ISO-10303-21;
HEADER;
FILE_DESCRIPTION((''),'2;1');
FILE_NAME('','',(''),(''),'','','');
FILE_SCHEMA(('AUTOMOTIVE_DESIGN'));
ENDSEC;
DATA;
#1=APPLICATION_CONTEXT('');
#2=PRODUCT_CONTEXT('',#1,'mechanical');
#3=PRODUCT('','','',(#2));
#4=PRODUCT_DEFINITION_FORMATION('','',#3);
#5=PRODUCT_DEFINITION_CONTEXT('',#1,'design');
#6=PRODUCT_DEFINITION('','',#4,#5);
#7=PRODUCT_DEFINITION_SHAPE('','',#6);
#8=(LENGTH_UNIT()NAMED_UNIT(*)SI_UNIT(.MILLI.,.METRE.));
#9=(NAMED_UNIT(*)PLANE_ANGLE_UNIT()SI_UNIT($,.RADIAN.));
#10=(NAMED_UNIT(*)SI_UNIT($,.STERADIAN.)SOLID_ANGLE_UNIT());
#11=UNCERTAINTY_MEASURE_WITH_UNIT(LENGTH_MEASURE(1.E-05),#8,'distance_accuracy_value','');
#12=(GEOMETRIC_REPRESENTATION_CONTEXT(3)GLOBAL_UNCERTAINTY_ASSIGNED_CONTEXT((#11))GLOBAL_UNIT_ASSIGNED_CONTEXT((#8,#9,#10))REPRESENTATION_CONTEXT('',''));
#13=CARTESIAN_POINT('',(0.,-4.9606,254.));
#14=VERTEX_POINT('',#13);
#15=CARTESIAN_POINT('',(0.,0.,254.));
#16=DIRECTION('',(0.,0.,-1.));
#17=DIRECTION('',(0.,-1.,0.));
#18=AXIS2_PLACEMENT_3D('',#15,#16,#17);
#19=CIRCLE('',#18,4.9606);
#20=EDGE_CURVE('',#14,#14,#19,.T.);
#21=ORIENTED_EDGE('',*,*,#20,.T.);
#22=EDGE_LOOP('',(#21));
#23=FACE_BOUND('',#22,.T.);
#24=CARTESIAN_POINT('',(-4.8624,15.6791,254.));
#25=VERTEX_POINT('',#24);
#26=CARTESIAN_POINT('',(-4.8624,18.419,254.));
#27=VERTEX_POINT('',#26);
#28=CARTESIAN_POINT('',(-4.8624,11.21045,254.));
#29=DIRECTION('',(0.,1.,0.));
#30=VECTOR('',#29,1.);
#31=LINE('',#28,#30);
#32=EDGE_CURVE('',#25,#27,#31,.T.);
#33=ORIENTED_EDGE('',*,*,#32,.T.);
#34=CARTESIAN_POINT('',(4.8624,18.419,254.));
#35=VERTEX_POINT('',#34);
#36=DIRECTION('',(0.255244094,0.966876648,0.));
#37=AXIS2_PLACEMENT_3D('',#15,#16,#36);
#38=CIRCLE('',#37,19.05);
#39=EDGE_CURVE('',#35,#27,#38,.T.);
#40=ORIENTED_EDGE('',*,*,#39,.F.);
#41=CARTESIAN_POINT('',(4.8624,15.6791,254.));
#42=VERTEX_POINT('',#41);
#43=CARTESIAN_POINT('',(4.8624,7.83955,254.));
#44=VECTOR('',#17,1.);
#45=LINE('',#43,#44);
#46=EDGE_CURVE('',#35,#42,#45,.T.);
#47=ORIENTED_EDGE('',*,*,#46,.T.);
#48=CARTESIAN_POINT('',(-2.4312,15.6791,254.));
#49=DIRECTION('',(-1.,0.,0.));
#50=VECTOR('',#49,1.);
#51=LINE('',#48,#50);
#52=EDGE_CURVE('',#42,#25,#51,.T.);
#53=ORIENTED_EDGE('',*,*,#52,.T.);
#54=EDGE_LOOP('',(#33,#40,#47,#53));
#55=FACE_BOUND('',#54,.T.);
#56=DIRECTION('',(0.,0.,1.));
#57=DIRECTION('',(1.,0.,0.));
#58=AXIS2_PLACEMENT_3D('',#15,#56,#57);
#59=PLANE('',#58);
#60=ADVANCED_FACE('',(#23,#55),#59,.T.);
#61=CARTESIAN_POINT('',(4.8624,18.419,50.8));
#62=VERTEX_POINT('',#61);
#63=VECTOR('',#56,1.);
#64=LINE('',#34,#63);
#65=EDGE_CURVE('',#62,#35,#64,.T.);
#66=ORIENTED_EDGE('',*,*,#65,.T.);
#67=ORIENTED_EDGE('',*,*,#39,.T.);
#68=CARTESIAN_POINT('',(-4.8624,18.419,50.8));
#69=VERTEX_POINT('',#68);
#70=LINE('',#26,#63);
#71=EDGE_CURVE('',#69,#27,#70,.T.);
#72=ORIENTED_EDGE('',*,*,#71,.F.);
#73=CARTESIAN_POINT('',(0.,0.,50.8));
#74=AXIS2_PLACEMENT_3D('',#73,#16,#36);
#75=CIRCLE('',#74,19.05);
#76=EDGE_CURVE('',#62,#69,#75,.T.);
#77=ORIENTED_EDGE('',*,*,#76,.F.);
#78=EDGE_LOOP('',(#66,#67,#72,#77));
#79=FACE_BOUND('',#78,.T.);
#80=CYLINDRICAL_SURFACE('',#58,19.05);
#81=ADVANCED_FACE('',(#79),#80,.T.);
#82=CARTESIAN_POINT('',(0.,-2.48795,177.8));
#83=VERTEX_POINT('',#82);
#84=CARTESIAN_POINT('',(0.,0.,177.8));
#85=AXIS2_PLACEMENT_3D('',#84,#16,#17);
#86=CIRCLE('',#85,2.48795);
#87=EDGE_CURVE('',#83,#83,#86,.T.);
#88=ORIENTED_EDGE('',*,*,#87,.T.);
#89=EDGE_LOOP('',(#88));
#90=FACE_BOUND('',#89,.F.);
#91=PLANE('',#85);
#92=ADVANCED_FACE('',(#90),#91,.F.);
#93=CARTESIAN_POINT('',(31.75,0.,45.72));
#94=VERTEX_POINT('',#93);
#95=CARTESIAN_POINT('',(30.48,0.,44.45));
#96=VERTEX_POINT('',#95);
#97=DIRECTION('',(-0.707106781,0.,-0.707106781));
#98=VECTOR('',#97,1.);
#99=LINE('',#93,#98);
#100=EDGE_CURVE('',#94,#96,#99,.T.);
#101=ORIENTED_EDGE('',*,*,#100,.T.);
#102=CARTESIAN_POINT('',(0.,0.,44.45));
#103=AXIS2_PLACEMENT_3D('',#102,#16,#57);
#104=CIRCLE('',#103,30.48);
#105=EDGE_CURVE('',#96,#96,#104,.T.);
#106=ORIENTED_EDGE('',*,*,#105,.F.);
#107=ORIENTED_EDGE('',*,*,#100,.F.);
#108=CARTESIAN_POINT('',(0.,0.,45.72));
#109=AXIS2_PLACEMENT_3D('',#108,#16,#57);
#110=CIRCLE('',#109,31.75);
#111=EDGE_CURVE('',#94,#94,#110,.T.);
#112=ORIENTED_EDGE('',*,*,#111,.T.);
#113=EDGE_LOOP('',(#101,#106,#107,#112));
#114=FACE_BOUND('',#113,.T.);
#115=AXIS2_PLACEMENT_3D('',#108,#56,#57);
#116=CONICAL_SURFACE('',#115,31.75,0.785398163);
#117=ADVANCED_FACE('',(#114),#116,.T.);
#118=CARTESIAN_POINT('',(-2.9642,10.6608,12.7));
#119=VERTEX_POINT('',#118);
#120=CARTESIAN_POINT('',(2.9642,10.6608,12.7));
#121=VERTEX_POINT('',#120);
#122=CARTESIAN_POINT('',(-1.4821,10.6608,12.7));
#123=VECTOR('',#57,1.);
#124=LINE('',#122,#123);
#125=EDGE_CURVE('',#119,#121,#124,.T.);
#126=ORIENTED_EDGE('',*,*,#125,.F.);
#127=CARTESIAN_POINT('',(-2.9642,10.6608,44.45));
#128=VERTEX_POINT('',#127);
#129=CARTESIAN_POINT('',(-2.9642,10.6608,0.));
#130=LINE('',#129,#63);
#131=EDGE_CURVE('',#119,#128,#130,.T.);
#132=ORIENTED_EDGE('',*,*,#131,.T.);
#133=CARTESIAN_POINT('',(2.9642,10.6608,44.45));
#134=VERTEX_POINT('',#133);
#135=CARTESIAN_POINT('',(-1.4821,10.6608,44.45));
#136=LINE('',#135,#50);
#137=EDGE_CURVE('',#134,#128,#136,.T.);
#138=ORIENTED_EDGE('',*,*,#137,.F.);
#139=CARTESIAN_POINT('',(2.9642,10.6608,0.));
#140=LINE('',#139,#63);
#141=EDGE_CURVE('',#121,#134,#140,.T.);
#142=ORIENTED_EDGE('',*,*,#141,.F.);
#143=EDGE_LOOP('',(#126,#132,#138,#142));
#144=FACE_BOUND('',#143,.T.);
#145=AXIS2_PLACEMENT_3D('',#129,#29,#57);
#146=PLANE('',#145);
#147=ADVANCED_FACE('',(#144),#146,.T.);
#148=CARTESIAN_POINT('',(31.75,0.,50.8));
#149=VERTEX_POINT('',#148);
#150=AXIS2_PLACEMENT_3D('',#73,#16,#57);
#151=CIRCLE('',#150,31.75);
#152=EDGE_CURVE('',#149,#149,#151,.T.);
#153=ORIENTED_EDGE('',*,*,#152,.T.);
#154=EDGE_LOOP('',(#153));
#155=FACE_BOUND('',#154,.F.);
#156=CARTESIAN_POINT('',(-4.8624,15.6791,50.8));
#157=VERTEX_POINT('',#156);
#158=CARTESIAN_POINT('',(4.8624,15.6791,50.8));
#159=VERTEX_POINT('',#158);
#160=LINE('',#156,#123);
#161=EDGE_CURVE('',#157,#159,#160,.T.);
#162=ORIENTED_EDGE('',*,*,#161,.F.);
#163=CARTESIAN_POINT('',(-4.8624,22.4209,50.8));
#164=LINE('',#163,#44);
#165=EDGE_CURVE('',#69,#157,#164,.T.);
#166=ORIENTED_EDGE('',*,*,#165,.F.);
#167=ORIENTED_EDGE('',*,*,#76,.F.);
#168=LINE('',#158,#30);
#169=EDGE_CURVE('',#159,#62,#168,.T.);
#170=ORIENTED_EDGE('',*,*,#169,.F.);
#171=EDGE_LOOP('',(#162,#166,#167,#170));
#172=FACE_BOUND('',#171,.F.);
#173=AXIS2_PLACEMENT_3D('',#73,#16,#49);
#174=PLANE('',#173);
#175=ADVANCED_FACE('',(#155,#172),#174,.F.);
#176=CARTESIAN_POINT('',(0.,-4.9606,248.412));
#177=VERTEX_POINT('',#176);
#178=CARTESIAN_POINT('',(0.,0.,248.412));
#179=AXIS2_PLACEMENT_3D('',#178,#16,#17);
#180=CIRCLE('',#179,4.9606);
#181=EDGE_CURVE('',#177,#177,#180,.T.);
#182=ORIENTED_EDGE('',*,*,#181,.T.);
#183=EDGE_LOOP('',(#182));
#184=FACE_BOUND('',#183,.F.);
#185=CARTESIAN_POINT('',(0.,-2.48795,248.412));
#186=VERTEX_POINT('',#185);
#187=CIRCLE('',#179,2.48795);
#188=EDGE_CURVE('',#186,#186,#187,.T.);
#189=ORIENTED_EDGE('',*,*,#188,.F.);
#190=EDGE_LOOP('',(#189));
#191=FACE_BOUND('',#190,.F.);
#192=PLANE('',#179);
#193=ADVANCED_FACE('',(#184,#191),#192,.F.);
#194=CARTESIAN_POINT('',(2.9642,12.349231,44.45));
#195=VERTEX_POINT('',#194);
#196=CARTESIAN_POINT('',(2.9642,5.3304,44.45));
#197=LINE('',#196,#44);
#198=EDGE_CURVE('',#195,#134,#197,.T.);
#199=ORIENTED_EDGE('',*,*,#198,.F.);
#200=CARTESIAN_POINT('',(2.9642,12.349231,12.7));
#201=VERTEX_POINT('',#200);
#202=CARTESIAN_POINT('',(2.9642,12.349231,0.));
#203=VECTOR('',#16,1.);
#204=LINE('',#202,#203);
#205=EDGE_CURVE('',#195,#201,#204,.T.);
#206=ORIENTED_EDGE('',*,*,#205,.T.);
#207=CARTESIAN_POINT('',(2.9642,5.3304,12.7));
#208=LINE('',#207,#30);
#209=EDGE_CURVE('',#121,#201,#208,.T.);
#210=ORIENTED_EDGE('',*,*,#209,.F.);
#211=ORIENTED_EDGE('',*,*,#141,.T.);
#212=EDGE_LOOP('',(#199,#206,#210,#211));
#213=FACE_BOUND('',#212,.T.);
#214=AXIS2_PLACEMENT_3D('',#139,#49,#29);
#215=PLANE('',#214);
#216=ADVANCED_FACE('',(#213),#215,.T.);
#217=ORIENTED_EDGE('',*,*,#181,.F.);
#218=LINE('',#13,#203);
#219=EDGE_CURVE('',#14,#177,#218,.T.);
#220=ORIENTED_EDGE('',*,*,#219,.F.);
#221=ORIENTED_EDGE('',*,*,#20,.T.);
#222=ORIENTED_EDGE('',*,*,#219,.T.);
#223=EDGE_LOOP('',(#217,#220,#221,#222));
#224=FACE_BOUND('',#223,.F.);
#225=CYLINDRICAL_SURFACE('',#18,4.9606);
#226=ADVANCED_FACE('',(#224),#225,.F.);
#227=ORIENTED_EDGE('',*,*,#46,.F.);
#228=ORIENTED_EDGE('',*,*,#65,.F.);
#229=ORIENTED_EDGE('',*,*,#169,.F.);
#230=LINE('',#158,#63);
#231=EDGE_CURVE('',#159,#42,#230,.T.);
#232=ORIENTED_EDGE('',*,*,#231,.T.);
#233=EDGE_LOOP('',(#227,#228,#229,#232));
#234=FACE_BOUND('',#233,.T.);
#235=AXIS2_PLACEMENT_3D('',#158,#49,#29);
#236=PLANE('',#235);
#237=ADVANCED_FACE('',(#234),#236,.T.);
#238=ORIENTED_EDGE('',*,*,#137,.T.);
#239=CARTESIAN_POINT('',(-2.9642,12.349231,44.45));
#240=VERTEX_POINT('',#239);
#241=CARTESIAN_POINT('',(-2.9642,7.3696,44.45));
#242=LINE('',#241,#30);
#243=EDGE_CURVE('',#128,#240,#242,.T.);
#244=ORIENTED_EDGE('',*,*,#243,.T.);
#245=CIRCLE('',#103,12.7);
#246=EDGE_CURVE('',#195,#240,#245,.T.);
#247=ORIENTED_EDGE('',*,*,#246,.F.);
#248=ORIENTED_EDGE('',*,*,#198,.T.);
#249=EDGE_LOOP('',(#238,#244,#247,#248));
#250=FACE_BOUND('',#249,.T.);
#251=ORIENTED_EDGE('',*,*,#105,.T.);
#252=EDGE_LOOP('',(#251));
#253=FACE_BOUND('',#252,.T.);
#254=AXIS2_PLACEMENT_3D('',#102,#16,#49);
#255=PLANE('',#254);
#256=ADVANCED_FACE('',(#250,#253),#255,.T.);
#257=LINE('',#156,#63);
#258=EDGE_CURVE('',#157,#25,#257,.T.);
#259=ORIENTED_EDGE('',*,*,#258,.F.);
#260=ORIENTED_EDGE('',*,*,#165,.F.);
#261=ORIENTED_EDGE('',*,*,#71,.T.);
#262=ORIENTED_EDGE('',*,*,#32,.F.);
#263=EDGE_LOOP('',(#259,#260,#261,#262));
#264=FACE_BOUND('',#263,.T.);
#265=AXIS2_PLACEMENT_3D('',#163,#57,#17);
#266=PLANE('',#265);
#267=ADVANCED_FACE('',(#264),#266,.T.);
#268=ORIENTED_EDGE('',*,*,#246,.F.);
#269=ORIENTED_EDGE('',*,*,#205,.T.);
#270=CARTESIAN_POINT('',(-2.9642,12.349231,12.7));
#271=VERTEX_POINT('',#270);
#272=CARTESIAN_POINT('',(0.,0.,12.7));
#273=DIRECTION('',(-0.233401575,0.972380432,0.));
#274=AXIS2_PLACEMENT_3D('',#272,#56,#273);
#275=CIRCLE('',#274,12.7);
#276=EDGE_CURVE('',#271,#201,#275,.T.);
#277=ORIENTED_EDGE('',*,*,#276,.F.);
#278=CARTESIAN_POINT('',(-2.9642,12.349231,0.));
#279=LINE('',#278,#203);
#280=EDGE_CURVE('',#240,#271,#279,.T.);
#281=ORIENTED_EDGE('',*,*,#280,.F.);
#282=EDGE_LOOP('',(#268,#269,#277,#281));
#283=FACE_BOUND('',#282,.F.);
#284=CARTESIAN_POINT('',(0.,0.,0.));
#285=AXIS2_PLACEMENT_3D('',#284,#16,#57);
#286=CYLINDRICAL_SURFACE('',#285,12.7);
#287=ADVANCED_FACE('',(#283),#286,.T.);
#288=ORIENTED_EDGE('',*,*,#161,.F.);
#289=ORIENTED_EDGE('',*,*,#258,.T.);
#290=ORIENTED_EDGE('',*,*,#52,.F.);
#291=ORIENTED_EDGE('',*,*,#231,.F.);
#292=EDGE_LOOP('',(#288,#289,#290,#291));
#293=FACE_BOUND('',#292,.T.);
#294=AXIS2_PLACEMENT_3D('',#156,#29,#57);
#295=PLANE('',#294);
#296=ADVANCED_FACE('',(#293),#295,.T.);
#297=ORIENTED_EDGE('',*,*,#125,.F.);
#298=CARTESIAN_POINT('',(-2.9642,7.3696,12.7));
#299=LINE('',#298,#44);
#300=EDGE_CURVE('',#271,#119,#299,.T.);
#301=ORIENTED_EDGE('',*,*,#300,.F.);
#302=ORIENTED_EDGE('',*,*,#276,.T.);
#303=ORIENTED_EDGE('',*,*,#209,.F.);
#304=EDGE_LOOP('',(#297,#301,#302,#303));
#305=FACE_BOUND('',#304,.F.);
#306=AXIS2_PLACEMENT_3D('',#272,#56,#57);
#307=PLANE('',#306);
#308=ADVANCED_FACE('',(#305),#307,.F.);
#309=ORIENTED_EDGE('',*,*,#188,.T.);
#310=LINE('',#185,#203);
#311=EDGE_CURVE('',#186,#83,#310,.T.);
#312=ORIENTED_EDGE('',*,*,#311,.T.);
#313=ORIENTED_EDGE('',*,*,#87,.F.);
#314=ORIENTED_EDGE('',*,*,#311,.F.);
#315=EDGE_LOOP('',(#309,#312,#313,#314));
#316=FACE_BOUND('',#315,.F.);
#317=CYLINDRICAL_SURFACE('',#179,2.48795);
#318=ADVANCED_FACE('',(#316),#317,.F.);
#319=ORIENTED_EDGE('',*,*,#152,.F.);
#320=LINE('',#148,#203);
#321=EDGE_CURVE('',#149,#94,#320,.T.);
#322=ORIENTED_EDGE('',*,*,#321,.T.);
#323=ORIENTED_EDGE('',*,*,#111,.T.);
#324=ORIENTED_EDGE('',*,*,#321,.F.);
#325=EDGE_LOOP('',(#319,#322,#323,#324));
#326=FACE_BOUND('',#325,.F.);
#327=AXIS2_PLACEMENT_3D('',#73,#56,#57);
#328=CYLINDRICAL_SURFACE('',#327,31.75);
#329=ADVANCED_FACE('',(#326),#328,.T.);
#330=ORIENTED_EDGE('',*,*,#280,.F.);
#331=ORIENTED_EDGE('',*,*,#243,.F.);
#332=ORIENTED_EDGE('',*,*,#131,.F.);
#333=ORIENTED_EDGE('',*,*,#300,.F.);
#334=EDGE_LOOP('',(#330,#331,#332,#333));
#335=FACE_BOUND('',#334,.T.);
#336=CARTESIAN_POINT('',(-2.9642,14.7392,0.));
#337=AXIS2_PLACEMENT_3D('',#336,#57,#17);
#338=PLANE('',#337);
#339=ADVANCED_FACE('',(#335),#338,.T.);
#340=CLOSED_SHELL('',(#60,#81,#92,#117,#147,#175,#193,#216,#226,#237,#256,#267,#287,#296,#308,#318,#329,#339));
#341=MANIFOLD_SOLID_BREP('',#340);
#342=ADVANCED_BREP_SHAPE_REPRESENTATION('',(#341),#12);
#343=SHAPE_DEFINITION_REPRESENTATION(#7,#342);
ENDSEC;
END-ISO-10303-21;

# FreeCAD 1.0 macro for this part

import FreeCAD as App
import Part
import Sketcher
Q = App.Units.Quantity


def edges_at(feature, points):
    """Names of the edges that pass closest to the given points."""
    edges = feature.Shape.Edges
    near = lambda p: min(range(len(edges)), key=lambda i: edges[i].distToShape(Part.Vertex(*p))[0])
    return sorted({f"Edge{near(p) + 1}" for p in points})

doc = App.newDocument("Part")
body = doc.addObject("PartDesign::Body", "Body")

# Sketch on XY plane
sketch1 = body.newObject("Sketcher::SketchObject", "Sketch")
sketch1.AttachmentSupport = (doc.getObject("XY_Plane"), [""])
sketch1.MapMode = "FlatFace"
sketch1.addGeometry(Part.Circle(App.Vector(0, 0, 0), App.Vector(0, 0, 1), 13), False)
sketch1.addConstraint([
    Sketcher.Constraint("Coincident", 0, 3, -1, 1),
    Sketcher.Constraint("Diameter", 0, Q("1 in")),
])
pad1 = body.newObject("PartDesign::Pad", "Pad")
pad1.Profile = sketch1
pad1.Length = Q("10 in")

# Sketch on XY plane
sketch2 = body.newObject("Sketcher::SketchObject", "Sketch001")
sketch2.AttachmentSupport = (doc.getObject("XY_Plane"), [""])
sketch2.MapMode = "FlatFace"
sketch2.AttachmentOffset = App.Placement(App.Vector(0, 0, 10 * 25.4), App.Rotation())
sketch2.addGeometry(Part.Circle(App.Vector(0, 0, 0), App.Vector(0, 0, 1), 19), False)
sketch2.addConstraint([
    Sketcher.Constraint("Coincident", 0, 3, -1, 1),
    Sketcher.Constraint("Diameter", 0, Q("1.5 in")),
])
pad2 = body.newObject("PartDesign::Pad", "Pad001")
pad2.Profile = sketch2
pad2.Length = Q("8 in")
pad2.Reversed = True

# Sketch on XY plane
sketch3 = body.newObject("Sketcher::SketchObject", "Sketch002")
sketch3.AttachmentSupport = (doc.getObject("XY_Plane"), [""])
sketch3.MapMode = "FlatFace"
sketch3.addGeometry([
    Part.LineSegment(App.Vector(-3, 14.7, 0), App.Vector(3, 14.7, 0)),
    Part.LineSegment(App.Vector(3, 14.7, 0), App.Vector(3, 10.7, 0)),
    Part.LineSegment(App.Vector(3, 10.7, 0), App.Vector(-3, 10.7, 0)),
    Part.LineSegment(App.Vector(-3, 10.7, 0), App.Vector(-3, 14.7, 0)),
], False)
sketch3.addConstraint([
    Sketcher.Constraint("Coincident", 0, 2, 1, 1),
    Sketcher.Constraint("Coincident", 1, 2, 2, 1),
    Sketcher.Constraint("Coincident", 2, 2, 3, 1),
    Sketcher.Constraint("Coincident", 3, 2, 0, 1),
    Sketcher.Constraint("Horizontal", 0),
    Sketcher.Constraint("Vertical", 1),
    Sketcher.Constraint("Horizontal", 2),
    Sketcher.Constraint("Vertical", 3),
    Sketcher.Constraint("DistanceX", 0, 1, 0, 2, Q("0.2334 in")),
    Sketcher.Constraint("DistanceY", 1, 2, 1, 1, Q("4.0784 mm")),
    Sketcher.Constraint("DistanceX", -1, 1, 0, 2, Q("0.1167 in")),
    Sketcher.Constraint("DistanceY", -1, 1, 0, 2, Q("14.7392 mm")),
])
pocket1 = body.newObject("PartDesign::Pocket", "Pocket")
pocket1.Profile = sketch3
pocket1.Length = Q("2 in")
pocket1.Reversed = True

# Sketch on XY plane
sketch4 = body.newObject("Sketcher::SketchObject", "Sketch003")
sketch4.AttachmentSupport = (doc.getObject("XY_Plane"), [""])
sketch4.MapMode = "FlatFace"
sketch4.AttachmentOffset = App.Placement(App.Vector(0, 0, 2 * 25.4), App.Rotation())
sketch4.addGeometry([
    Part.LineSegment(App.Vector(-5, 22, 0), App.Vector(5, 22, 0)),
    Part.LineSegment(App.Vector(5, 22, 0), App.Vector(5, 16, 0)),
    Part.LineSegment(App.Vector(5, 16, 0), App.Vector(-5, 16, 0)),
    Part.LineSegment(App.Vector(-5, 16, 0), App.Vector(-5, 22, 0)),
], False)
sketch4.addConstraint([
    Sketcher.Constraint("Coincident", 0, 2, 1, 1),
    Sketcher.Constraint("Coincident", 1, 2, 2, 1),
    Sketcher.Constraint("Coincident", 2, 2, 3, 1),
    Sketcher.Constraint("Coincident", 3, 2, 0, 1),
    Sketcher.Constraint("Horizontal", 0),
    Sketcher.Constraint("Vertical", 1),
    Sketcher.Constraint("Horizontal", 2),
    Sketcher.Constraint("Vertical", 3),
    Sketcher.Constraint("DistanceX", 0, 1, 0, 2, Q("9.7248 mm")),
    Sketcher.Constraint("DistanceY", 1, 2, 1, 1, Q("6.7418 mm")),
    Sketcher.Constraint("DistanceX", -1, 1, 0, 2, Q("4.8624 mm")),
    Sketcher.Constraint("DistanceY", -1, 1, 0, 2, Q("22.421 mm")),
])
pocket2 = body.newObject("PartDesign::Pocket", "Pocket001")
pocket2.Profile = sketch4
pocket2.Length = 224.5097
pocket2.Reversed = True

# Sketch on XY plane
sketch5 = body.newObject("Sketcher::SketchObject", "Sketch004")
sketch5.AttachmentSupport = (doc.getObject("XY_Plane"), [""])
sketch5.MapMode = "FlatFace"
sketch5.AttachmentOffset = App.Placement(App.Vector(0, 0, 2 * 25.4), App.Rotation())
sketch5.addGeometry(Part.Circle(App.Vector(0, 0, 0), App.Vector(0, 0, 1), 32), False)
sketch5.addConstraint([
    Sketcher.Constraint("Coincident", 0, 3, -1, 1),
    Sketcher.Constraint("Diameter", 0, Q("2.5 in")),
])
pad3 = body.newObject("PartDesign::Pad", "Pad002")
pad3.Profile = sketch5
pad3.Length = Q("0.25 in")
pad3.Reversed = True
doc.recompute()

chamfer = body.newObject("PartDesign::Chamfer", "Chamfer")
chamfer.Base = (pad3, edges_at(pad3, [(-31.75, 0, 44.45)]))
chamfer.Size = Q("0.05 in")

# Sketch on XY plane
sketch6 = body.newObject("Sketcher::SketchObject", "Sketch005")
sketch6.AttachmentSupport = (doc.getObject("XY_Plane"), [""])
sketch6.MapMode = "FlatFace"
sketch6.AttachmentOffset = App.Placement(App.Vector(0, 0, 10 * 25.4), App.Rotation())
sketch6.addGeometry(Part.Circle(App.Vector(0, 0, 0), App.Vector(0, 0, 1), 2.5), False)
sketch6.addConstraint([
    Sketcher.Constraint("Coincident", 0, 3, -1, 1),
    Sketcher.Constraint("Diameter", 0, Q("0.1959 in")),
])
doc.recompute()
hole = body.newObject("PartDesign::Hole", "Hole")
hole.Profile = sketch6
hole.ThreadType = "None"
hole.Diameter = Q("0.1959016 in")
hole.DepthType = "Dimension"
hole.Depth = Q("3 in")
hole.DrillPoint = "Flat"
hole.HoleCutType = "Counterbore"
hole.HoleCutDiameter = Q("0.3905984 in")
hole.HoleCutDepth = Q("0.22 in")

# Sketch on XY plane
sketch7 = body.newObject("Sketcher::SketchObject", "Sketch006")
sketch7.AttachmentSupport = (doc.getObject("XY_Plane"), [""])
sketch7.MapMode = "FlatFace"
sketch7.addGeometry(Part.Circle(App.Vector(0, 0, 0), App.Vector(0, 0, 1), 13), False)
sketch7.addConstraint([
    Sketcher.Constraint("Coincident", 0, 3, -1, 1),
    Sketcher.Constraint("Diameter", 0, Q("1 in")),
])
pocket3 = body.newObject("PartDesign::Pocket", "Pocket002")
pocket3.Profile = sketch7
pocket3.Length = Q("0.5 in")
pocket3.Reversed = True

doc.recompute()
